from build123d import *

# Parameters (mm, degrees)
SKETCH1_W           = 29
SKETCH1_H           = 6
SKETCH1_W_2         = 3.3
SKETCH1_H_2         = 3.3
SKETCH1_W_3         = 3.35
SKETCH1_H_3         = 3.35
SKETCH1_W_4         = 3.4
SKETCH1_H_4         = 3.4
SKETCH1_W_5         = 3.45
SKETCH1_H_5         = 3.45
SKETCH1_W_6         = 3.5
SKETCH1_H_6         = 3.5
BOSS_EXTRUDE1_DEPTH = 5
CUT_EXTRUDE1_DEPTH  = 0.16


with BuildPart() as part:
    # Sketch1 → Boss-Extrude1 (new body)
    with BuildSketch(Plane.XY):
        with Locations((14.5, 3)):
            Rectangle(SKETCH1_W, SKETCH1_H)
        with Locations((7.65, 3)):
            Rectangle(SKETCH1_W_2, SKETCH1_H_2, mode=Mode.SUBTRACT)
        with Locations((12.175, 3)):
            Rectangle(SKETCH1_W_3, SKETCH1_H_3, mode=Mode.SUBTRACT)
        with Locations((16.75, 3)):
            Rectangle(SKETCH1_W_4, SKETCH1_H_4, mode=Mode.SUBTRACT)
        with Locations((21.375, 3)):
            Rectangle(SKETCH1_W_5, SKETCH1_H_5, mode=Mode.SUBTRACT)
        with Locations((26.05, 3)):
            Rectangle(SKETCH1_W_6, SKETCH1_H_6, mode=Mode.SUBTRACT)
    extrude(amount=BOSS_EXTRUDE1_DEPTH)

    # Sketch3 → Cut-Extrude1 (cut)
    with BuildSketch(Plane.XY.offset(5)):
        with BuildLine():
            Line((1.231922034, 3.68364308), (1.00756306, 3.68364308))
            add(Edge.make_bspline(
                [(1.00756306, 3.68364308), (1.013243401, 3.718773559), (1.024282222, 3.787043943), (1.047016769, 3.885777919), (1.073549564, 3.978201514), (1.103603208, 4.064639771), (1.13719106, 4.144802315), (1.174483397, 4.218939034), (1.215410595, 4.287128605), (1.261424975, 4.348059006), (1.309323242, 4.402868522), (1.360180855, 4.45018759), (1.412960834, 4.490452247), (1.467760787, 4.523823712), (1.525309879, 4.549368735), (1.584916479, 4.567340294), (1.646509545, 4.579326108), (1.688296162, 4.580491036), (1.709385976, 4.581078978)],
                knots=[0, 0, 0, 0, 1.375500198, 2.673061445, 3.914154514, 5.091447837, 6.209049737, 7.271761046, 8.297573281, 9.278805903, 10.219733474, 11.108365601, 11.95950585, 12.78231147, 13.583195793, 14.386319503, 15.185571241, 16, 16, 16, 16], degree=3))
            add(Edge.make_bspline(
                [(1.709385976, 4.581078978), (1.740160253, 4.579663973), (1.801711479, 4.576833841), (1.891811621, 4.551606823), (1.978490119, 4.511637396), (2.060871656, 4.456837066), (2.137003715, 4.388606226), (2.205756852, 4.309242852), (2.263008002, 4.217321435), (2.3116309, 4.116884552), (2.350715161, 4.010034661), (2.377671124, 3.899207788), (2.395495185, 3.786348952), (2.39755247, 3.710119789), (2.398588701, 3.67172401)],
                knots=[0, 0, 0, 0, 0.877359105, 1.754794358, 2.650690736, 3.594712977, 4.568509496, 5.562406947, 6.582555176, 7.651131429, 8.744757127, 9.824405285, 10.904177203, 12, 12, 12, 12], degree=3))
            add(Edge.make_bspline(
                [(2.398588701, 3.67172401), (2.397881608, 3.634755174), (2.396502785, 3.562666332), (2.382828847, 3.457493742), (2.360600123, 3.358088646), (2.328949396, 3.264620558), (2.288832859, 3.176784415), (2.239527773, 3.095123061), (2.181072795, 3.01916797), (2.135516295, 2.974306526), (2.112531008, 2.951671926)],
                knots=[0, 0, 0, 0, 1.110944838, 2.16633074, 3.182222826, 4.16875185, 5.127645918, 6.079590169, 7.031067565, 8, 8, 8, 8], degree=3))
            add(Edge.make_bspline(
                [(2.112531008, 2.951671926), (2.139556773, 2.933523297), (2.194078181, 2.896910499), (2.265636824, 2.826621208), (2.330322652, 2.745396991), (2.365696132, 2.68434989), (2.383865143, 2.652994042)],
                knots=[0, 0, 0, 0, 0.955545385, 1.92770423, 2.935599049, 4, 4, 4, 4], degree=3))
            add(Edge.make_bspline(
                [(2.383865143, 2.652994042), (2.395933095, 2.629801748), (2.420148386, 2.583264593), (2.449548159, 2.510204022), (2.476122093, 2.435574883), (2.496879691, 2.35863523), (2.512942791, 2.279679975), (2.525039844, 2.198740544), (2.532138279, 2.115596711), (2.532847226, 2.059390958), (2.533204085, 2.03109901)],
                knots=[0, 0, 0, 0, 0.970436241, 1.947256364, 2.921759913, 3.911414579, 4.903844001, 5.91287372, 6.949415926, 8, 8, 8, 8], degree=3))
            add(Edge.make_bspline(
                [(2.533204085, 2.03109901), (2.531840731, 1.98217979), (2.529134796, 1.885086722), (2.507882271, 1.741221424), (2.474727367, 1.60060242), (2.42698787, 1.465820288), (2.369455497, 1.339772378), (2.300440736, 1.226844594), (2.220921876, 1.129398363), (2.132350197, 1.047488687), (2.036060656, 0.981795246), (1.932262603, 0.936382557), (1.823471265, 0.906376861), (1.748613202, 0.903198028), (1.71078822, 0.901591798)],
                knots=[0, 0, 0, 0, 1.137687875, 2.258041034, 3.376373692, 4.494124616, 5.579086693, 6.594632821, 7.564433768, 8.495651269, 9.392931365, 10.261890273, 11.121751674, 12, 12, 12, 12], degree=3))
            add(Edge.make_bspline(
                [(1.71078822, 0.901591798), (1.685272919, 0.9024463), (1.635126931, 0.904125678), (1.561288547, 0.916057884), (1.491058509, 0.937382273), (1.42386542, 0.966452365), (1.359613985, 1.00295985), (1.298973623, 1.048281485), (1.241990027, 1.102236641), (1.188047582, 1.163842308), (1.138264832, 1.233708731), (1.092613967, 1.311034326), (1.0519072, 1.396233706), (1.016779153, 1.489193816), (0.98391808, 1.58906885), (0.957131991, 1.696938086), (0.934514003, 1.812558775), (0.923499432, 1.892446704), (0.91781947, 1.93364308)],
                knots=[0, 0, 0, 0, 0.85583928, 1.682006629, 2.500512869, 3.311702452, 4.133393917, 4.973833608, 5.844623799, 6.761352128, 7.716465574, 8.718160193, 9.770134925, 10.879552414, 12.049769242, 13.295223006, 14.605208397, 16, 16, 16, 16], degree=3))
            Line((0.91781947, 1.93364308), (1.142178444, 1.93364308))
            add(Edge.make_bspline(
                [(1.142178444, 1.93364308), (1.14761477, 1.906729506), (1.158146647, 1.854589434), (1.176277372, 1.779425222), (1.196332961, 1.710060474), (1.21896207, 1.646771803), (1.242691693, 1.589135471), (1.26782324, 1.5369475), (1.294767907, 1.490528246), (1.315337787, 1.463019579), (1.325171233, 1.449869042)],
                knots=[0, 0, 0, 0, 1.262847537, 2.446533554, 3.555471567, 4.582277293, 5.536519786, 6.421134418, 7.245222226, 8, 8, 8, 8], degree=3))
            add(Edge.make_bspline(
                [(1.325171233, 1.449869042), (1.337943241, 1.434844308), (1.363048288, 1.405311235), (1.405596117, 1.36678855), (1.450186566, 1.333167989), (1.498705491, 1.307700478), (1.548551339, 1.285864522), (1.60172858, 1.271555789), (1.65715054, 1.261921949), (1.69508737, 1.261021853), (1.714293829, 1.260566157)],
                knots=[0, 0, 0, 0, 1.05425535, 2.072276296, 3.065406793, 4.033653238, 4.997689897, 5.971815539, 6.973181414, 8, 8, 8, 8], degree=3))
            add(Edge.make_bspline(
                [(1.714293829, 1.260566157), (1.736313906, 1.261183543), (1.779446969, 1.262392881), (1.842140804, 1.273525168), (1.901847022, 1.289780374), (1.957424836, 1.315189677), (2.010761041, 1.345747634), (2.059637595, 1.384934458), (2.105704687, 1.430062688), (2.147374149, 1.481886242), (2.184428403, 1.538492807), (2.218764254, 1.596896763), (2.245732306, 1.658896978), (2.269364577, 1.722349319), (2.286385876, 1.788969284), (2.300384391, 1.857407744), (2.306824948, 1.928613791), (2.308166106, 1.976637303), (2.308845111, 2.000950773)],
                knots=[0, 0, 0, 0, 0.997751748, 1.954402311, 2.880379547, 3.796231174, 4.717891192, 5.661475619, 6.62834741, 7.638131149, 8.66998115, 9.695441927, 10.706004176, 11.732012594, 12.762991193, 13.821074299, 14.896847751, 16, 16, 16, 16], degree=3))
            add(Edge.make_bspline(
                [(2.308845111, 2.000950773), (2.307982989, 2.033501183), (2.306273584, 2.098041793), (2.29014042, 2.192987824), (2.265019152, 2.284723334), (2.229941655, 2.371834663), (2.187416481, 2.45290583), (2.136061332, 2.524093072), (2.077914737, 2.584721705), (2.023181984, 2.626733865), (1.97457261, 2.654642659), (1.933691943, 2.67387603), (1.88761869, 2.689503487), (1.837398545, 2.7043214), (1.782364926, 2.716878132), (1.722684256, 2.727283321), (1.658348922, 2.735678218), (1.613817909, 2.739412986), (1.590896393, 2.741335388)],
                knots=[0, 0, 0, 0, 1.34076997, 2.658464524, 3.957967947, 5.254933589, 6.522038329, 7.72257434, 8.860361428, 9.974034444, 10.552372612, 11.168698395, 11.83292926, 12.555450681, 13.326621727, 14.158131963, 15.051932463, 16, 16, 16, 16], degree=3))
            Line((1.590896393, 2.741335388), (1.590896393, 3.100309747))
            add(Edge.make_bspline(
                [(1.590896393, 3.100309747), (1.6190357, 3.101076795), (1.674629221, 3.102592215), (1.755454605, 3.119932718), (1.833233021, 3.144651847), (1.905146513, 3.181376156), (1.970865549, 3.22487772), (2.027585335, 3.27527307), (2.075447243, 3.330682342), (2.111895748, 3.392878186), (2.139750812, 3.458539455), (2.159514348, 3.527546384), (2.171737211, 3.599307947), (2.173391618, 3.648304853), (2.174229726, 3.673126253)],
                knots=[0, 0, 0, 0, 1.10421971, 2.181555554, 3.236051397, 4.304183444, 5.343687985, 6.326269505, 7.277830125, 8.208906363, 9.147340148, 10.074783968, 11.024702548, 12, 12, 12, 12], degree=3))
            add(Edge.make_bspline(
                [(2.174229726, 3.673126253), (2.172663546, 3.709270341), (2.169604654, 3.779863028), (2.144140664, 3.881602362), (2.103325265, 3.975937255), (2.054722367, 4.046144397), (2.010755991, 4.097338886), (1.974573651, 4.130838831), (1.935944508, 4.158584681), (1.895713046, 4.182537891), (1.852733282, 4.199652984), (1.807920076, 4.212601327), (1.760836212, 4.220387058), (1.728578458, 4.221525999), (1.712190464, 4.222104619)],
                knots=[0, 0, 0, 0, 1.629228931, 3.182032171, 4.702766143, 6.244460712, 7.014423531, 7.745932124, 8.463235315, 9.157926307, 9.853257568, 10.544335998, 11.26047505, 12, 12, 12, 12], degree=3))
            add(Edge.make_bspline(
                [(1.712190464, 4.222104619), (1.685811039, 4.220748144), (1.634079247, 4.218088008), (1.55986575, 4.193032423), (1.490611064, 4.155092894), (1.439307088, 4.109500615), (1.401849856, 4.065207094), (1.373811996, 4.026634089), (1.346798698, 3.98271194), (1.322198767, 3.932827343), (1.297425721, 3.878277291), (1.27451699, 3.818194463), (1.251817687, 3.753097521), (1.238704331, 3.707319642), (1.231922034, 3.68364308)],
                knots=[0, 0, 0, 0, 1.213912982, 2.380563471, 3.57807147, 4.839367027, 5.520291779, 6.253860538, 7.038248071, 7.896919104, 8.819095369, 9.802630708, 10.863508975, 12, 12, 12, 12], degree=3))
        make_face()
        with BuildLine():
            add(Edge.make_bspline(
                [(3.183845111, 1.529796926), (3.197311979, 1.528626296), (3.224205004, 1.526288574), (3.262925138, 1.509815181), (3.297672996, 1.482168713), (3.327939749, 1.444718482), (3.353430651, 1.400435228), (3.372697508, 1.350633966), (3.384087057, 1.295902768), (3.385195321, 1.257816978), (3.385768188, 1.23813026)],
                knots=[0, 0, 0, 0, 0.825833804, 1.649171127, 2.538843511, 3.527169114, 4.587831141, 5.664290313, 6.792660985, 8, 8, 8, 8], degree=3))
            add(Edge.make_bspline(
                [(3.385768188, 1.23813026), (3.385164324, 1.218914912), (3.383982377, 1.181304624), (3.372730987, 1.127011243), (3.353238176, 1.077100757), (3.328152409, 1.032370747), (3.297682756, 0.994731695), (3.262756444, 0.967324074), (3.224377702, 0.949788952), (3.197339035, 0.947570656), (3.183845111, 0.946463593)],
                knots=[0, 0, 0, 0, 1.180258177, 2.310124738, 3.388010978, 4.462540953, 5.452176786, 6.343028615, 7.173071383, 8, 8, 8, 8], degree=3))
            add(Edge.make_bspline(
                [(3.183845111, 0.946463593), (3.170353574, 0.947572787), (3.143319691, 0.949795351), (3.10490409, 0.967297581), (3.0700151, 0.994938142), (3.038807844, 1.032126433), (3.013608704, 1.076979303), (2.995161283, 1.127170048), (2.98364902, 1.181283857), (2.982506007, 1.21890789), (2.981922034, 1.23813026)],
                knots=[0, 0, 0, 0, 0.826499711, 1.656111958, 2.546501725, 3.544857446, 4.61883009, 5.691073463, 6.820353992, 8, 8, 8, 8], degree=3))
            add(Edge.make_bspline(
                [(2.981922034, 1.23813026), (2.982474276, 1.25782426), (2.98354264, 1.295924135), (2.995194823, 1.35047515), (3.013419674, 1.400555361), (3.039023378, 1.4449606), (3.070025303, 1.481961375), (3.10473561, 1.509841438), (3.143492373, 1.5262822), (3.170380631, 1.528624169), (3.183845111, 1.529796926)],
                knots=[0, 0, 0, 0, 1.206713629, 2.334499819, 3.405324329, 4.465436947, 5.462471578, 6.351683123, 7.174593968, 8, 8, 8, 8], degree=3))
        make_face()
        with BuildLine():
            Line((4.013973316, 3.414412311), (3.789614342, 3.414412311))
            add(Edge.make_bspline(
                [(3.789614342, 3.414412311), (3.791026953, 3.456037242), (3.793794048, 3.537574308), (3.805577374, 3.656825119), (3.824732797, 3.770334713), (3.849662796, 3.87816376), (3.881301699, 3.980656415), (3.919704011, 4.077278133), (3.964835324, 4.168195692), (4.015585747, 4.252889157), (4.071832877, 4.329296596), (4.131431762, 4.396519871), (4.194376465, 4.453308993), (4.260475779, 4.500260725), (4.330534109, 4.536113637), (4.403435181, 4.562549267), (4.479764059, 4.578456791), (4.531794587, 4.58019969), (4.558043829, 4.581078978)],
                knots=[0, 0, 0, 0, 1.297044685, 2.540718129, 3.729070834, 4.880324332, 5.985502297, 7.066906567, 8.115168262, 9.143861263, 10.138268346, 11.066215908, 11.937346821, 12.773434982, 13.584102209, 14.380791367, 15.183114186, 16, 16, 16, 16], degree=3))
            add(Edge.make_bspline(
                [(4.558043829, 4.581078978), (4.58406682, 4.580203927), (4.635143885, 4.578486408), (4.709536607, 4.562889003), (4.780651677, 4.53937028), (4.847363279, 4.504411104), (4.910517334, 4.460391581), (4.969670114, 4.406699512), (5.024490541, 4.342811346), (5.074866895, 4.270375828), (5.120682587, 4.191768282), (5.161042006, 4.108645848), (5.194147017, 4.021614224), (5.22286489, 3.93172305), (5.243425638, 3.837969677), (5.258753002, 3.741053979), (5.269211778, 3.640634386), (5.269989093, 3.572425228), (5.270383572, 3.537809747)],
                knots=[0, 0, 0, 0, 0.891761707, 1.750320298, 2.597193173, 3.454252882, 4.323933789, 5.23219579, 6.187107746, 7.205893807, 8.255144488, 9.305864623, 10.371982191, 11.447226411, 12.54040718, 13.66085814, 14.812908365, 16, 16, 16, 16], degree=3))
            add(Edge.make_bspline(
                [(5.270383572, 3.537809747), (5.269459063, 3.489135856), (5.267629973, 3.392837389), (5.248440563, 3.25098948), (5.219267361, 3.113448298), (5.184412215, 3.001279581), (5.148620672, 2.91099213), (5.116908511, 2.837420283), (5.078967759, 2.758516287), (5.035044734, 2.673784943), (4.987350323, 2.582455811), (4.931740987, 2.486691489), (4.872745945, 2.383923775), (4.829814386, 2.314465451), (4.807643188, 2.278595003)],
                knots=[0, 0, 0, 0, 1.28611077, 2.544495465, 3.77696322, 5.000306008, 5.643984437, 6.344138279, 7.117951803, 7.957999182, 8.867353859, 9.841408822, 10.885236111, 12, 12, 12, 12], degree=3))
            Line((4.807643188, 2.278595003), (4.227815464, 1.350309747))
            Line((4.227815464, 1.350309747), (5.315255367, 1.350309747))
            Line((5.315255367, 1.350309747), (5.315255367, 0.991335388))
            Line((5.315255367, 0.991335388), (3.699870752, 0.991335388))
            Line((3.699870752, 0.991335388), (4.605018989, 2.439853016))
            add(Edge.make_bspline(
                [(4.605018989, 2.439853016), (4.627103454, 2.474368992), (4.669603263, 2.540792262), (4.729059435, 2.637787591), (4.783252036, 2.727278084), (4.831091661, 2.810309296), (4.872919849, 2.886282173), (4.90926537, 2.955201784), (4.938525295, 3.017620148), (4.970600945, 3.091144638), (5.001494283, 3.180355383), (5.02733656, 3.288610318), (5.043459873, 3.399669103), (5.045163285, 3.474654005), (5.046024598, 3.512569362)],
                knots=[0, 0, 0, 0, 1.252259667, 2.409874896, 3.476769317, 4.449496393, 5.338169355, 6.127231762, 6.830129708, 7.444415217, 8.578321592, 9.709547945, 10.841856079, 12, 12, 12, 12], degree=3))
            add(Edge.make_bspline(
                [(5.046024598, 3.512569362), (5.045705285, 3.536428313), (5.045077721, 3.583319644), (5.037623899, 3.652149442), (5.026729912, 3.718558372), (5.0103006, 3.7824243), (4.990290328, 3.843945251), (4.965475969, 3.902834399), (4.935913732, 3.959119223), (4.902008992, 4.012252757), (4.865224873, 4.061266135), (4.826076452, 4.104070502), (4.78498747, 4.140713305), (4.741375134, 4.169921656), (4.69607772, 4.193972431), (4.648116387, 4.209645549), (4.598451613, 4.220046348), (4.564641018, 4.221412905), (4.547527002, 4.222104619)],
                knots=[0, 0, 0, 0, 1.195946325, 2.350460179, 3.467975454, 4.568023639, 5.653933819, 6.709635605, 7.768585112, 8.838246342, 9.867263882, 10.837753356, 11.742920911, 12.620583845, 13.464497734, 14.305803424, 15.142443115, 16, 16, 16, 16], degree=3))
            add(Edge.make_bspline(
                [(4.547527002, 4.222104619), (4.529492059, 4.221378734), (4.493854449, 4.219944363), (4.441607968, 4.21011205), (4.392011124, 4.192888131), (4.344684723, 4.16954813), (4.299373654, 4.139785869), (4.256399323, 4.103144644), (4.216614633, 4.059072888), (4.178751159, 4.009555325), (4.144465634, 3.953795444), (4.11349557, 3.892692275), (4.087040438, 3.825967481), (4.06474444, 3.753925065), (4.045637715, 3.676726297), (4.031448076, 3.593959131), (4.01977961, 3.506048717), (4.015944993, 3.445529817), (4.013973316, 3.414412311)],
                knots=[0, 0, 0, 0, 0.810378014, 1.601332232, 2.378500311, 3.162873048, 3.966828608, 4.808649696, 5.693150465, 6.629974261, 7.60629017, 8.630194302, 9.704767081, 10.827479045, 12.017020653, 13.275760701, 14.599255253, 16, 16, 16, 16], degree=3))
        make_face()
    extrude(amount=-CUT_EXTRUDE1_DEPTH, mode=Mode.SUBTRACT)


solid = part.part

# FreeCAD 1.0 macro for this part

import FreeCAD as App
import Part
import Sketcher

V = App.Vector


def add_polygon(sketch, points):
    """Adds a closed chain of lines whose ends are joined by coincident constraints."""
    first, n = sketch.GeometryCount, len(points)
    for a, b in zip(points, points[1:] + points[:1]):
        sketch.addGeometry(Part.LineSegment(App.Vector(*a, 0), App.Vector(*b, 0)), False)
    for i in range(n):
        sketch.addConstraint(Sketcher.Constraint("Coincident", first + i, 2, first + (i + 1) % n, 1))

doc = App.newDocument("Part")
body = doc.addObject("PartDesign::Body", "Body")

sketch1 = body.newObject("Sketcher::SketchObject", "Sketch")
sketch1.AttachmentSupport = (doc.getObject("XY_Plane"), [""])
sketch1.MapMode = "FlatFace"
add_polygon(sketch1, [(0, 6), (0, 0), (29, 0), (29, 6)])
add_polygon(sketch1, [(9.3, 1.35), (6, 1.35), (6, 4.65), (9.3, 4.65)])
add_polygon(sketch1, [(13.85, 1.325), (10.5, 1.325), (10.5, 4.675), (13.85, 4.675)])
add_polygon(sketch1, [(18.45, 1.3), (15.05, 1.3), (15.05, 4.7), (18.45, 4.7)])
add_polygon(sketch1, [(23.1, 1.275), (19.65, 1.275), (19.65, 4.725), (23.1, 4.725)])
add_polygon(sketch1, [(27.8, 1.25), (24.3, 1.25), (24.3, 4.75), (27.8, 4.75)])
sketch1.addConstraint(Sketcher.Constraint("Vertical", 0))
sketch1.addConstraint(Sketcher.Constraint("Horizontal", 1))
sketch1.addConstraint(Sketcher.Constraint("Vertical", 2))
sketch1.addConstraint(Sketcher.Constraint("Horizontal", 3))
sketch1.addConstraint(Sketcher.Constraint("Horizontal", 4))
sketch1.addConstraint(Sketcher.Constraint("Vertical", 5))
sketch1.addConstraint(Sketcher.Constraint("Horizontal", 6))
sketch1.addConstraint(Sketcher.Constraint("Vertical", 7))
sketch1.addConstraint(Sketcher.Constraint("Horizontal", 8))
sketch1.addConstraint(Sketcher.Constraint("Vertical", 9))
sketch1.addConstraint(Sketcher.Constraint("Horizontal", 10))
sketch1.addConstraint(Sketcher.Constraint("Vertical", 11))
sketch1.addConstraint(Sketcher.Constraint("Horizontal", 12))
sketch1.addConstraint(Sketcher.Constraint("Vertical", 13))
sketch1.addConstraint(Sketcher.Constraint("Horizontal", 14))
sketch1.addConstraint(Sketcher.Constraint("Vertical", 15))
sketch1.addConstraint(Sketcher.Constraint("Horizontal", 16))
sketch1.addConstraint(Sketcher.Constraint("Vertical", 17))
sketch1.addConstraint(Sketcher.Constraint("Horizontal", 18))
sketch1.addConstraint(Sketcher.Constraint("Vertical", 19))
sketch1.addConstraint(Sketcher.Constraint("Horizontal", 20))
sketch1.addConstraint(Sketcher.Constraint("Vertical", 21))
sketch1.addConstraint(Sketcher.Constraint("Horizontal", 22))
sketch1.addConstraint(Sketcher.Constraint("Vertical", 23))
sketch1.addConstraint(Sketcher.Constraint("Coincident", 0, 2, -1, 1))
sketch1.addConstraint(Sketcher.Constraint("Equal", 6, 5))
sketch1.addConstraint(Sketcher.Constraint("Equal", 10, 9))
sketch1.addConstraint(Sketcher.Constraint("Equal", 14, 13))
sketch1.addConstraint(Sketcher.Constraint("Equal", 18, 17))
sketch1.addConstraint(Sketcher.Constraint("Equal", 22, 21))
sketch1.addConstraint(Sketcher.Constraint("DistanceX", 1, 1, 1, 2, 29.0))
sketch1.addConstraint(Sketcher.Constraint("DistanceY", 0, 2, 0, 1, 6.0))
sketch1.addConstraint(Sketcher.Constraint("DistanceX", 4, 2, 4, 1, 3.3))
sketch1.addConstraint(Sketcher.Constraint("DistanceX", 12, 2, 12, 1, 3.4))
sketch1.addConstraint(Sketcher.Constraint("DistanceX", 20, 2, 20, 1, 3.5))
sketch1.addConstraint(Sketcher.Constraint("DistanceX", -1, 1, 4, 2, 6.0))
sketch1.addConstraint(Sketcher.Constraint("DistanceX", 8, 2, 8, 1, 3.35))
sketch1.addConstraint(Sketcher.Constraint("DistanceX", 16, 2, 16, 1, 3.45))
sketch1.addConstraint(Sketcher.Constraint("DistanceX", -1, 1, 8, 2, 10.5))
sketch1.addConstraint(Sketcher.Constraint("DistanceY", -1, 1, 12, 2, 1.3))
sketch1.addConstraint(Sketcher.Constraint("DistanceX", -1, 1, 18, 2, 23.1))
sketch1.addConstraint(Sketcher.Constraint("DistanceX", -1, 1, 20, 2, 24.3))
sketch1.addConstraint(Sketcher.Constraint("DistanceX", 11, 2, 12, 2, 1.2))
sketch1.addConstraint(Sketcher.Constraint("DistanceY", -1, 1, 4, 2, 1.35))
sketch1.addConstraint(Sketcher.Constraint("DistanceY", -1, 1, 20, 2, 1.25))
sketch1.addConstraint(Sketcher.Constraint("DistanceY", 16, 2, 11, 2, 0.05))
sketch1.addConstraint(Sketcher.Constraint("DistanceY", -1, 1, 8, 2, 1.325))
pad1 = body.newObject("PartDesign::Pad", "Pad")
pad1.Profile = sketch1
pad1.Length = 5

sketch2 = body.newObject("Sketcher::SketchObject", "Sketch001")
sketch2.AttachmentSupport = (doc.getObject("XY_Plane"), [""])
sketch2.MapMode = "FlatFace"
sketch2.AttachmentOffset = App.Placement(V(0, 0, 5), App.Rotation())
sketch2.addGeometry(Part.LineSegment(V(1.007563, 3.683643, 0), V(1.231922, 3.683643, 0)), False)
sketch2.addGeometry(Part.BSplineCurve([V(1.71219, 4.222105, 0), V(1.685811, 4.220748, 0), V(1.634079, 4.218088, 0), V(1.559866, 4.193032, 0), V(1.490611, 4.155093, 0), V(1.439307, 4.109501, 0), V(1.40185, 4.065207, 0), V(1.373812, 4.026634, 0), V(1.346799, 3.982712, 0), V(1.322199, 3.932827, 0), V(1.297426, 3.878277, 0), V(1.274517, 3.818194, 0), V(1.251818, 3.753098, 0), V(1.238704, 3.70732, 0), V(1.231922, 3.683643, 0)], [4, 1, 1, 1, 1, 1, 1, 1, 1, 1, 1, 1, 4], [0, 1.213912982, 2.380563471, 3.57807147, 4.839367027, 5.520291779, 6.253860538, 7.038248071, 7.896919104, 8.819095369, 9.802630708, 10.863508975, 12], False, 3, [1, 1, 1, 1, 1, 1, 1, 1, 1, 1, 1, 1, 1, 1, 1], False), False)
sketch2.addGeometry(Part.BSplineCurve([V(2.17423, 3.673126, 0), V(2.172664, 3.70927, 0), V(2.169605, 3.779863, 0), V(2.144141, 3.881602, 0), V(2.103325, 3.975937, 0), V(2.054722, 4.046144, 0), V(2.010756, 4.097339, 0), V(1.974574, 4.130839, 0), V(1.935945, 4.158585, 0), V(1.895713, 4.182538, 0), V(1.852733, 4.199653, 0), V(1.80792, 4.212601, 0), V(1.760836, 4.220387, 0), V(1.728578, 4.221526, 0), V(1.71219, 4.222105, 0)], [4, 1, 1, 1, 1, 1, 1, 1, 1, 1, 1, 1, 4], [0, 1.629228931, 3.182032171, 4.702766143, 6.244460712, 7.014423531, 7.745932124, 8.463235315, 9.157926307, 9.853257568, 10.544335998, 11.26047505, 12], False, 3, [1, 1, 1, 1, 1, 1, 1, 1, 1, 1, 1, 1, 1, 1, 1], False), False)
sketch2.addGeometry(Part.BSplineCurve([V(1.590896, 3.10031, 0), V(1.619036, 3.101077, 0), V(1.674629, 3.102592, 0), V(1.755455, 3.119933, 0), V(1.833233, 3.144652, 0), V(1.905147, 3.181376, 0), V(1.970866, 3.224878, 0), V(2.027585, 3.275273, 0), V(2.075447, 3.330682, 0), V(2.111896, 3.392878, 0), V(2.139751, 3.458539, 0), V(2.159514, 3.527546, 0), V(2.171737, 3.599308, 0), V(2.173392, 3.648305, 0), V(2.17423, 3.673126, 0)], [4, 1, 1, 1, 1, 1, 1, 1, 1, 1, 1, 1, 4], [0, 1.10421971, 2.181555554, 3.236051397, 4.304183444, 5.343687985, 6.326269505, 7.277830125, 8.208906363, 9.147340148, 10.074783968, 11.024702548, 12], False, 3, [1, 1, 1, 1, 1, 1, 1, 1, 1, 1, 1, 1, 1, 1, 1], False), False)
sketch2.addGeometry(Part.LineSegment(V(1.590896, 3.10031, 0), V(1.590896, 2.741335, 0)), False)
sketch2.addGeometry(Part.BSplineCurve([V(2.308845, 2.000951, 0), V(2.307983, 2.033501, 0), V(2.306274, 2.098042, 0), V(2.29014, 2.192988, 0), V(2.265019, 2.284723, 0), V(2.229942, 2.371835, 0), V(2.187416, 2.452906, 0), V(2.136061, 2.524093, 0), V(2.077915, 2.584722, 0), V(2.023182, 2.626734, 0), V(1.974573, 2.654643, 0), V(1.933692, 2.673876, 0), V(1.887619, 2.689503, 0), V(1.837399, 2.704321, 0), V(1.782365, 2.716878, 0), V(1.722684, 2.727283, 0), V(1.658349, 2.735678, 0), V(1.613818, 2.739413, 0), V(1.590896, 2.741335, 0)], [4, 1, 1, 1, 1, 1, 1, 1, 1, 1, 1, 1, 1, 1, 1, 1, 4], [0, 1.34076997, 2.658464524, 3.957967947, 5.254933589, 6.522038329, 7.72257434, 8.860361428, 9.974034444, 10.552372612, 11.168698395, 11.83292926, 12.555450681, 13.326621727, 14.158131963, 15.051932463, 16], False, 3, [1, 1, 1, 1, 1, 1, 1, 1, 1, 1, 1, 1, 1, 1, 1, 1, 1, 1, 1], False), False)
sketch2.addGeometry(Part.BSplineCurve([V(1.714294, 1.260566, 0), V(1.736314, 1.261184, 0), V(1.779447, 1.262393, 0), V(1.842141, 1.273525, 0), V(1.901847, 1.28978, 0), V(1.957425, 1.31519, 0), V(2.010761, 1.345748, 0), V(2.059638, 1.384934, 0), V(2.105705, 1.430063, 0), V(2.147374, 1.481886, 0), V(2.184428, 1.538493, 0), V(2.218764, 1.596897, 0), V(2.245732, 1.658897, 0), V(2.269365, 1.722349, 0), V(2.286386, 1.788969, 0), V(2.300384, 1.857408, 0), V(2.306825, 1.928614, 0), V(2.308166, 1.976637, 0), V(2.308845, 2.000951, 0)], [4, 1, 1, 1, 1, 1, 1, 1, 1, 1, 1, 1, 1, 1, 1, 1, 4], [0, 0.997751748, 1.954402311, 2.880379547, 3.796231174, 4.717891192, 5.661475619, 6.62834741, 7.638131149, 8.66998115, 9.695441927, 10.706004176, 11.732012594, 12.762991193, 13.821074299, 14.896847751, 16], False, 3, [1, 1, 1, 1, 1, 1, 1, 1, 1, 1, 1, 1, 1, 1, 1, 1, 1, 1, 1], False), False)
sketch2.addGeometry(Part.BSplineCurve([V(1.325171, 1.449869, 0), V(1.337943, 1.434844, 0), V(1.363048, 1.405311, 0), V(1.405596, 1.366789, 0), V(1.450187, 1.333168, 0), V(1.498705, 1.3077, 0), V(1.548551, 1.285865, 0), V(1.601729, 1.271556, 0), V(1.657151, 1.261922, 0), V(1.695087, 1.261022, 0), V(1.714294, 1.260566, 0)], [4, 1, 1, 1, 1, 1, 1, 1, 4], [0, 1.05425535, 2.072276296, 3.065406793, 4.033653238, 4.997689897, 5.971815539, 6.973181414, 8], False, 3, [1, 1, 1, 1, 1, 1, 1, 1, 1, 1, 1], False), False)
sketch2.addGeometry(Part.BSplineCurve([V(1.142178, 1.933643, 0), V(1.147615, 1.90673, 0), V(1.158147, 1.854589, 0), V(1.176277, 1.779425, 0), V(1.196333, 1.71006, 0), V(1.218962, 1.646772, 0), V(1.242692, 1.589135, 0), V(1.267823, 1.536947, 0), V(1.294768, 1.490528, 0), V(1.315338, 1.46302, 0), V(1.325171, 1.449869, 0)], [4, 1, 1, 1, 1, 1, 1, 1, 4], [0, 1.262847537, 2.446533554, 3.555471567, 4.582277293, 5.536519786, 6.421134418, 7.245222226, 8], False, 3, [1, 1, 1, 1, 1, 1, 1, 1, 1, 1, 1], False), False)
sketch2.addGeometry(Part.LineSegment(V(1.142178, 1.933643, 0), V(0.917819, 1.933643, 0)), False)
sketch2.addGeometry(Part.BSplineCurve([V(1.710788, 0.901592, 0), V(1.685273, 0.902446, 0), V(1.635127, 0.904126, 0), V(1.561289, 0.916058, 0), V(1.491059, 0.937382, 0), V(1.423865, 0.966452, 0), V(1.359614, 1.00296, 0), V(1.298974, 1.048281, 0), V(1.24199, 1.102237, 0), V(1.188048, 1.163842, 0), V(1.138265, 1.233709, 0), V(1.092614, 1.311034, 0), V(1.051907, 1.396234, 0), V(1.016779, 1.489194, 0), V(0.983918, 1.589069, 0), V(0.957132, 1.696938, 0), V(0.934514, 1.812559, 0), V(0.923499, 1.892447, 0), V(0.917819, 1.933643, 0)], [4, 1, 1, 1, 1, 1, 1, 1, 1, 1, 1, 1, 1, 1, 1, 1, 4], [0, 0.85583928, 1.682006629, 2.500512869, 3.311702452, 4.133393917, 4.973833608, 5.844623799, 6.761352128, 7.716465574, 8.718160193, 9.770134925, 10.879552414, 12.049769242, 13.295223006, 14.605208397, 16], False, 3, [1, 1, 1, 1, 1, 1, 1, 1, 1, 1, 1, 1, 1, 1, 1, 1, 1, 1, 1], False), False)
sketch2.addGeometry(Part.BSplineCurve([V(2.533204, 2.031099, 0), V(2.531841, 1.98218, 0), V(2.529135, 1.885087, 0), V(2.507882, 1.741221, 0), V(2.474727, 1.600602, 0), V(2.426988, 1.46582, 0), V(2.369455, 1.339772, 0), V(2.300441, 1.226845, 0), V(2.220922, 1.129398, 0), V(2.13235, 1.047489, 0), V(2.036061, 0.981795, 0), V(1.932263, 0.936383, 0), V(1.823471, 0.906377, 0), V(1.748613, 0.903198, 0), V(1.710788, 0.901592, 0)], [4, 1, 1, 1, 1, 1, 1, 1, 1, 1, 1, 1, 4], [0, 1.137687875, 2.258041034, 3.376373692, 4.494124616, 5.579086693, 6.594632821, 7.564433768, 8.495651269, 9.392931365, 10.261890273, 11.121751674, 12], False, 3, [1, 1, 1, 1, 1, 1, 1, 1, 1, 1, 1, 1, 1, 1, 1], False), False)
sketch2.addGeometry(Part.BSplineCurve([V(2.383865, 2.652994, 0), V(2.395933, 2.629802, 0), V(2.420148, 2.583265, 0), V(2.449548, 2.510204, 0), V(2.476122, 2.435575, 0), V(2.49688, 2.358635, 0), V(2.512943, 2.27968, 0), V(2.52504, 2.198741, 0), V(2.532138, 2.115597, 0), V(2.532847, 2.059391, 0), V(2.533204, 2.031099, 0)], [4, 1, 1, 1, 1, 1, 1, 1, 4], [0, 0.970436241, 1.947256364, 2.921759913, 3.911414579, 4.903844001, 5.91287372, 6.949415926, 8], False, 3, [1, 1, 1, 1, 1, 1, 1, 1, 1, 1, 1], False), False)
sketch2.addGeometry(Part.BSplineCurve([V(2.112531, 2.951672, 0), V(2.139557, 2.933523, 0), V(2.194078, 2.89691, 0), V(2.265637, 2.826621, 0), V(2.330323, 2.745397, 0), V(2.365696, 2.68435, 0), V(2.383865, 2.652994, 0)], [4, 1, 1, 1, 4], [0, 0.955545385, 1.92770423, 2.935599049, 4], False, 3, [1, 1, 1, 1, 1, 1, 1], False), False)
sketch2.addGeometry(Part.BSplineCurve([V(2.398589, 3.671724, 0), V(2.397882, 3.634755, 0), V(2.396503, 3.562666, 0), V(2.382829, 3.457494, 0), V(2.3606, 3.358089, 0), V(2.328949, 3.264621, 0), V(2.288833, 3.176784, 0), V(2.239528, 3.095123, 0), V(2.181073, 3.019168, 0), V(2.135516, 2.974307, 0), V(2.112531, 2.951672, 0)], [4, 1, 1, 1, 1, 1, 1, 1, 4], [0, 1.110944838, 2.16633074, 3.182222826, 4.16875185, 5.127645918, 6.079590169, 7.031067565, 8], False, 3, [1, 1, 1, 1, 1, 1, 1, 1, 1, 1, 1], False), False)
sketch2.addGeometry(Part.BSplineCurve([V(1.709386, 4.581079, 0), V(1.74016, 4.579664, 0), V(1.801711, 4.576834, 0), V(1.891812, 4.551607, 0), V(1.97849, 4.511637, 0), V(2.060872, 4.456837, 0), V(2.137004, 4.388606, 0), V(2.205757, 4.309243, 0), V(2.263008, 4.217321, 0), V(2.311631, 4.116885, 0), V(2.350715, 4.010035, 0), V(2.377671, 3.899208, 0), V(2.395495, 3.786349, 0), V(2.397552, 3.71012, 0), V(2.398589, 3.671724, 0)], [4, 1, 1, 1, 1, 1, 1, 1, 1, 1, 1, 1, 4], [0, 0.877359105, 1.754794358, 2.650690736, 3.594712977, 4.568509496, 5.562406947, 6.582555176, 7.651131429, 8.744757127, 9.824405285, 10.904177203, 12], False, 3, [1, 1, 1, 1, 1, 1, 1, 1, 1, 1, 1, 1, 1, 1, 1], False), False)
sketch2.addGeometry(Part.BSplineCurve([V(1.007563, 3.683643, 0), V(1.013243, 3.718774, 0), V(1.024282, 3.787044, 0), V(1.047017, 3.885778, 0), V(1.07355, 3.978202, 0), V(1.103603, 4.06464, 0), V(1.137191, 4.144802, 0), V(1.174483, 4.218939, 0), V(1.215411, 4.287129, 0), V(1.261425, 4.348059, 0), V(1.309323, 4.402869, 0), V(1.360181, 4.450188, 0), V(1.412961, 4.490452, 0), V(1.467761, 4.523824, 0), V(1.52531, 4.549369, 0), V(1.584916, 4.56734, 0), V(1.64651, 4.579326, 0), V(1.688296, 4.580491, 0), V(1.709386, 4.581079, 0)], [4, 1, 1, 1, 1, 1, 1, 1, 1, 1, 1, 1, 1, 1, 1, 1, 4], [0, 1.375500198, 2.673061445, 3.914154514, 5.091447837, 6.209049737, 7.271761046, 8.297573281, 9.278805903, 10.219733474, 11.108365601, 11.95950585, 12.78231147, 13.583195793, 14.386319503, 15.185571241, 16], False, 3, [1, 1, 1, 1, 1, 1, 1, 1, 1, 1, 1, 1, 1, 1, 1, 1, 1, 1, 1], False), False)
sketch2.addGeometry(Part.BSplineCurve([V(3.183845, 1.529797, 0), V(3.197312, 1.528626, 0), V(3.224205, 1.526289, 0), V(3.262925, 1.509815, 0), V(3.297673, 1.482169, 0), V(3.32794, 1.444718, 0), V(3.353431, 1.400435, 0), V(3.372698, 1.350634, 0), V(3.384087, 1.295903, 0), V(3.385195, 1.257817, 0), V(3.385768, 1.23813, 0)], [4, 1, 1, 1, 1, 1, 1, 1, 4], [0, 0.825833804, 1.649171127, 2.538843511, 3.527169114, 4.587831141, 5.664290313, 6.792660985, 8], False, 3, [1, 1, 1, 1, 1, 1, 1, 1, 1, 1, 1], False), False)
sketch2.addGeometry(Part.BSplineCurve([V(2.981922, 1.23813, 0), V(2.982474, 1.257824, 0), V(2.983543, 1.295924, 0), V(2.995195, 1.350475, 0), V(3.01342, 1.400555, 0), V(3.039023, 1.444961, 0), V(3.070025, 1.481961, 0), V(3.104736, 1.509841, 0), V(3.143492, 1.526282, 0), V(3.170381, 1.528624, 0), V(3.183845, 1.529797, 0)], [4, 1, 1, 1, 1, 1, 1, 1, 4], [0, 1.206713629, 2.334499819, 3.405324329, 4.465436947, 5.462471578, 6.351683123, 7.174593968, 8], False, 3, [1, 1, 1, 1, 1, 1, 1, 1, 1, 1, 1], False), False)
sketch2.addGeometry(Part.BSplineCurve([V(3.183845, 0.946464, 0), V(3.170354, 0.947573, 0), V(3.14332, 0.949795, 0), V(3.104904, 0.967298, 0), V(3.070015, 0.994938, 0), V(3.038808, 1.032126, 0), V(3.013609, 1.076979, 0), V(2.995161, 1.12717, 0), V(2.983649, 1.181284, 0), V(2.982506, 1.218908, 0), V(2.981922, 1.23813, 0)], [4, 1, 1, 1, 1, 1, 1, 1, 4], [0, 0.826499711, 1.656111958, 2.546501725, 3.544857446, 4.61883009, 5.691073463, 6.820353992, 8], False, 3, [1, 1, 1, 1, 1, 1, 1, 1, 1, 1, 1], False), False)
sketch2.addGeometry(Part.BSplineCurve([V(3.385768, 1.23813, 0), V(3.385164, 1.218915, 0), V(3.383982, 1.181305, 0), V(3.372731, 1.127011, 0), V(3.353238, 1.077101, 0), V(3.328152, 1.032371, 0), V(3.297683, 0.994732, 0), V(3.262756, 0.967324, 0), V(3.224378, 0.949789, 0), V(3.197339, 0.947571, 0), V(3.183845, 0.946464, 0)], [4, 1, 1, 1, 1, 1, 1, 1, 4], [0, 1.180258177, 2.310124738, 3.388010978, 4.462540953, 5.452176786, 6.343028615, 7.173071383, 8], False, 3, [1, 1, 1, 1, 1, 1, 1, 1, 1, 1, 1], False), False)
sketch2.addGeometry(Part.LineSegment(V(3.789614, 3.414412, 0), V(4.013973, 3.414412, 0)), False)
sketch2.addGeometry(Part.BSplineCurve([V(4.547527, 4.222105, 0), V(4.529492, 4.221379, 0), V(4.493854, 4.219944, 0), V(4.441608, 4.210112, 0), V(4.392011, 4.192888, 0), V(4.344685, 4.169548, 0), V(4.299374, 4.139786, 0), V(4.256399, 4.103145, 0), V(4.216615, 4.059073, 0), V(4.178751, 4.009555, 0), V(4.144466, 3.953795, 0), V(4.113496, 3.892692, 0), V(4.08704, 3.825967, 0), V(4.064744, 3.753925, 0), V(4.045638, 3.676726, 0), V(4.031448, 3.593959, 0), V(4.01978, 3.506049, 0), V(4.015945, 3.44553, 0), V(4.013973, 3.414412, 0)], [4, 1, 1, 1, 1, 1, 1, 1, 1, 1, 1, 1, 1, 1, 1, 1, 4], [0, 0.810378014, 1.601332232, 2.378500311, 3.162873048, 3.966828608, 4.808649696, 5.693150465, 6.629974261, 7.60629017, 8.630194302, 9.704767081, 10.827479045, 12.017020653, 13.275760701, 14.599255253, 16], False, 3, [1, 1, 1, 1, 1, 1, 1, 1, 1, 1, 1, 1, 1, 1, 1, 1, 1, 1, 1], False), False)
sketch2.addGeometry(Part.BSplineCurve([V(5.046025, 3.512569, 0), V(5.045705, 3.536428, 0), V(5.045078, 3.58332, 0), V(5.037624, 3.652149, 0), V(5.02673, 3.718558, 0), V(5.010301, 3.782424, 0), V(4.99029, 3.843945, 0), V(4.965476, 3.902834, 0), V(4.935914, 3.959119, 0), V(4.902009, 4.012253, 0), V(4.865225, 4.061266, 0), V(4.826076, 4.104071, 0), V(4.784987, 4.140713, 0), V(4.741375, 4.169922, 0), V(4.696078, 4.193972, 0), V(4.648116, 4.209646, 0), V(4.598452, 4.220046, 0), V(4.564641, 4.221413, 0), V(4.547527, 4.222105, 0)], [4, 1, 1, 1, 1, 1, 1, 1, 1, 1, 1, 1, 1, 1, 1, 1, 4], [0, 1.195946325, 2.350460179, 3.467975454, 4.568023639, 5.653933819, 6.709635605, 7.768585112, 8.838246342, 9.867263882, 10.837753356, 11.742920911, 12.620583845, 13.464497734, 14.305803424, 15.142443115, 16], False, 3, [1, 1, 1, 1, 1, 1, 1, 1, 1, 1, 1, 1, 1, 1, 1, 1, 1, 1, 1], False), False)
sketch2.addGeometry(Part.BSplineCurve([V(4.605019, 2.439853, 0), V(4.627103, 2.474369, 0), V(4.669603, 2.540792, 0), V(4.729059, 2.637788, 0), V(4.783252, 2.727278, 0), V(4.831092, 2.810309, 0), V(4.87292, 2.886282, 0), V(4.909265, 2.955202, 0), V(4.938525, 3.01762, 0), V(4.970601, 3.091145, 0), V(5.001494, 3.180355, 0), V(5.027337, 3.28861, 0), V(5.04346, 3.399669, 0), V(5.045163, 3.474654, 0), V(5.046025, 3.512569, 0)], [4, 1, 1, 1, 1, 1, 1, 1, 1, 1, 1, 1, 4], [0, 1.252259667, 2.409874896, 3.476769317, 4.449496393, 5.338169355, 6.127231762, 6.830129708, 7.444415217, 8.578321592, 9.709547945, 10.841856079, 12], False, 3, [1, 1, 1, 1, 1, 1, 1, 1, 1, 1, 1, 1, 1, 1, 1], False), False)
sketch2.addGeometry(Part.LineSegment(V(4.605019, 2.439853, 0), V(3.699871, 0.991335, 0)), False)
sketch2.addGeometry(Part.LineSegment(V(3.699871, 0.991335, 0), V(5.315255, 0.991335, 0)), False)
sketch2.addGeometry(Part.LineSegment(V(5.315255, 0.991335, 0), V(5.315255, 1.35031, 0)), False)
sketch2.addGeometry(Part.LineSegment(V(5.315255, 1.35031, 0), V(4.227815, 1.35031, 0)), False)
sketch2.addGeometry(Part.LineSegment(V(4.227815, 1.35031, 0), V(4.807643, 2.278595, 0)), False)
sketch2.addGeometry(Part.BSplineCurve([V(5.270384, 3.53781, 0), V(5.269459, 3.489136, 0), V(5.26763, 3.392837, 0), V(5.248441, 3.250989, 0), V(5.219267, 3.113448, 0), V(5.184412, 3.00128, 0), V(5.148621, 2.910992, 0), V(5.116909, 2.83742, 0), V(5.078968, 2.758516, 0), V(5.035045, 2.673785, 0), V(4.98735, 2.582456, 0), V(4.931741, 2.486691, 0), V(4.872746, 2.383924, 0), V(4.829814, 2.314465, 0), V(4.807643, 2.278595, 0)], [4, 1, 1, 1, 1, 1, 1, 1, 1, 1, 1, 1, 4], [0, 1.28611077, 2.544495465, 3.77696322, 5.000306008, 5.643984437, 6.344138279, 7.117951803, 7.957999182, 8.867353859, 9.841408822, 10.885236111, 12], False, 3, [1, 1, 1, 1, 1, 1, 1, 1, 1, 1, 1, 1, 1, 1, 1], False), False)
sketch2.addGeometry(Part.BSplineCurve([V(4.558044, 4.581079, 0), V(4.584067, 4.580204, 0), V(4.635144, 4.578486, 0), V(4.709537, 4.562889, 0), V(4.780652, 4.53937, 0), V(4.847363, 4.504411, 0), V(4.910517, 4.460392, 0), V(4.96967, 4.4067, 0), V(5.024491, 4.342811, 0), V(5.074867, 4.270376, 0), V(5.120683, 4.191768, 0), V(5.161042, 4.108646, 0), V(5.194147, 4.021614, 0), V(5.222865, 3.931723, 0), V(5.243426, 3.83797, 0), V(5.258753, 3.741054, 0), V(5.269212, 3.640634, 0), V(5.269989, 3.572425, 0), V(5.270384, 3.53781, 0)], [4, 1, 1, 1, 1, 1, 1, 1, 1, 1, 1, 1, 1, 1, 1, 1, 4], [0, 0.891761707, 1.750320298, 2.597193173, 3.454252882, 4.323933789, 5.23219579, 6.187107746, 7.205893807, 8.255144488, 9.305864623, 10.371982191, 11.447226411, 12.54040718, 13.66085814, 14.812908365, 16], False, 3, [1, 1, 1, 1, 1, 1, 1, 1, 1, 1, 1, 1, 1, 1, 1, 1, 1, 1, 1], False), False)
sketch2.addGeometry(Part.BSplineCurve([V(3.789614, 3.414412, 0), V(3.791027, 3.456037, 0), V(3.793794, 3.537574, 0), V(3.805577, 3.656825, 0), V(3.824733, 3.770335, 0), V(3.849663, 3.878164, 0), V(3.881302, 3.980656, 0), V(3.919704, 4.077278, 0), V(3.964835, 4.168196, 0), V(4.015586, 4.252889, 0), V(4.071833, 4.329297, 0), V(4.131432, 4.39652, 0), V(4.194376, 4.453309, 0), V(4.260476, 4.500261, 0), V(4.330534, 4.536114, 0), V(4.403435, 4.562549, 0), V(4.479764, 4.578457, 0), V(4.531795, 4.5802, 0), V(4.558044, 4.581079, 0)], [4, 1, 1, 1, 1, 1, 1, 1, 1, 1, 1, 1, 1, 1, 1, 1, 4], [0, 1.297044685, 2.540718129, 3.729070834, 4.880324332, 5.985502297, 7.066906567, 8.115168262, 9.143861263, 10.138268346, 11.066215908, 11.937346821, 12.773434982, 13.584102209, 14.380791367, 15.183114186, 16], False, 3, [1, 1, 1, 1, 1, 1, 1, 1, 1, 1, 1, 1, 1, 1, 1, 1, 1, 1, 1], False), False)
sketch2.addConstraint(Sketcher.Constraint("Block", 1))
sketch2.addConstraint(Sketcher.Constraint("Block", 2))
sketch2.addConstraint(Sketcher.Constraint("Block", 3))
sketch2.addConstraint(Sketcher.Constraint("Block", 5))
sketch2.addConstraint(Sketcher.Constraint("Block", 6))
sketch2.addConstraint(Sketcher.Constraint("Block", 7))
sketch2.addConstraint(Sketcher.Constraint("Block", 8))
sketch2.addConstraint(Sketcher.Constraint("Block", 10))
sketch2.addConstraint(Sketcher.Constraint("Block", 11))
sketch2.addConstraint(Sketcher.Constraint("Block", 12))
sketch2.addConstraint(Sketcher.Constraint("Block", 13))
sketch2.addConstraint(Sketcher.Constraint("Block", 14))
sketch2.addConstraint(Sketcher.Constraint("Block", 15))
sketch2.addConstraint(Sketcher.Constraint("Block", 16))
sketch2.addConstraint(Sketcher.Constraint("Block", 17))
sketch2.addConstraint(Sketcher.Constraint("Block", 18))
sketch2.addConstraint(Sketcher.Constraint("Block", 19))
sketch2.addConstraint(Sketcher.Constraint("Block", 20))
sketch2.addConstraint(Sketcher.Constraint("Block", 22))
sketch2.addConstraint(Sketcher.Constraint("Block", 23))
sketch2.addConstraint(Sketcher.Constraint("Block", 24))
sketch2.addConstraint(Sketcher.Constraint("Block", 30))
sketch2.addConstraint(Sketcher.Constraint("Block", 31))
sketch2.addConstraint(Sketcher.Constraint("Block", 32))
sketch2.addConstraint(Sketcher.Constraint("Coincident", 0, 2, 1, 2))
sketch2.addConstraint(Sketcher.Constraint("Coincident", 3, 1, 4, 1))
sketch2.addConstraint(Sketcher.Constraint("Coincident", 4, 2, 5, 2))
sketch2.addConstraint(Sketcher.Constraint("Coincident", 8, 1, 9, 1))
sketch2.addConstraint(Sketcher.Constraint("Coincident", 9, 2, 10, 2))
sketch2.addConstraint(Sketcher.Constraint("Coincident", 16, 1, 0, 1))
sketch2.addConstraint(Sketcher.Constraint("Coincident", 21, 2, 22, 2))
sketch2.addConstraint(Sketcher.Constraint("Coincident", 24, 1, 25, 1))
sketch2.addConstraint(Sketcher.Constraint("Coincident", 25, 2, 26, 1))
sketch2.addConstraint(Sketcher.Constraint("Coincident", 26, 2, 27, 1))
sketch2.addConstraint(Sketcher.Constraint("Coincident", 27, 2, 28, 1))
sketch2.addConstraint(Sketcher.Constraint("Coincident", 28, 2, 29, 1))
sketch2.addConstraint(Sketcher.Constraint("Coincident", 29, 2, 30, 2))
sketch2.addConstraint(Sketcher.Constraint("Coincident", 32, 1, 21, 1))
sketch2.addConstraint(Sketcher.Constraint("Horizontal", 26))
sketch2.addConstraint(Sketcher.Constraint("Vertical", 27))
sketch2.addConstraint(Sketcher.Constraint("Horizontal", 28))
sketch2.addConstraint(Sketcher.Constraint("DistanceY", 25, 2, 4, 2, 1.75))
sketch2.addConstraint(Sketcher.Constraint("DistanceX", 28, 2, 28, 1, 1.08744))
sketch2.addConstraint(Sketcher.Constraint("Distance", 25, 1.708068))
sketch2.addConstraint(Sketcher.Constraint("DistanceX", 26, 1, 26, 2, 1.615385))
sketch2.addConstraint(Sketcher.Constraint("DistanceY", 27, 1, 27, 2, 0.358974))
pocket1 = body.newObject("PartDesign::Pocket", "Pocket")
pocket1.Profile = sketch2
pocket1.Length = 0.16

doc.recompute()
